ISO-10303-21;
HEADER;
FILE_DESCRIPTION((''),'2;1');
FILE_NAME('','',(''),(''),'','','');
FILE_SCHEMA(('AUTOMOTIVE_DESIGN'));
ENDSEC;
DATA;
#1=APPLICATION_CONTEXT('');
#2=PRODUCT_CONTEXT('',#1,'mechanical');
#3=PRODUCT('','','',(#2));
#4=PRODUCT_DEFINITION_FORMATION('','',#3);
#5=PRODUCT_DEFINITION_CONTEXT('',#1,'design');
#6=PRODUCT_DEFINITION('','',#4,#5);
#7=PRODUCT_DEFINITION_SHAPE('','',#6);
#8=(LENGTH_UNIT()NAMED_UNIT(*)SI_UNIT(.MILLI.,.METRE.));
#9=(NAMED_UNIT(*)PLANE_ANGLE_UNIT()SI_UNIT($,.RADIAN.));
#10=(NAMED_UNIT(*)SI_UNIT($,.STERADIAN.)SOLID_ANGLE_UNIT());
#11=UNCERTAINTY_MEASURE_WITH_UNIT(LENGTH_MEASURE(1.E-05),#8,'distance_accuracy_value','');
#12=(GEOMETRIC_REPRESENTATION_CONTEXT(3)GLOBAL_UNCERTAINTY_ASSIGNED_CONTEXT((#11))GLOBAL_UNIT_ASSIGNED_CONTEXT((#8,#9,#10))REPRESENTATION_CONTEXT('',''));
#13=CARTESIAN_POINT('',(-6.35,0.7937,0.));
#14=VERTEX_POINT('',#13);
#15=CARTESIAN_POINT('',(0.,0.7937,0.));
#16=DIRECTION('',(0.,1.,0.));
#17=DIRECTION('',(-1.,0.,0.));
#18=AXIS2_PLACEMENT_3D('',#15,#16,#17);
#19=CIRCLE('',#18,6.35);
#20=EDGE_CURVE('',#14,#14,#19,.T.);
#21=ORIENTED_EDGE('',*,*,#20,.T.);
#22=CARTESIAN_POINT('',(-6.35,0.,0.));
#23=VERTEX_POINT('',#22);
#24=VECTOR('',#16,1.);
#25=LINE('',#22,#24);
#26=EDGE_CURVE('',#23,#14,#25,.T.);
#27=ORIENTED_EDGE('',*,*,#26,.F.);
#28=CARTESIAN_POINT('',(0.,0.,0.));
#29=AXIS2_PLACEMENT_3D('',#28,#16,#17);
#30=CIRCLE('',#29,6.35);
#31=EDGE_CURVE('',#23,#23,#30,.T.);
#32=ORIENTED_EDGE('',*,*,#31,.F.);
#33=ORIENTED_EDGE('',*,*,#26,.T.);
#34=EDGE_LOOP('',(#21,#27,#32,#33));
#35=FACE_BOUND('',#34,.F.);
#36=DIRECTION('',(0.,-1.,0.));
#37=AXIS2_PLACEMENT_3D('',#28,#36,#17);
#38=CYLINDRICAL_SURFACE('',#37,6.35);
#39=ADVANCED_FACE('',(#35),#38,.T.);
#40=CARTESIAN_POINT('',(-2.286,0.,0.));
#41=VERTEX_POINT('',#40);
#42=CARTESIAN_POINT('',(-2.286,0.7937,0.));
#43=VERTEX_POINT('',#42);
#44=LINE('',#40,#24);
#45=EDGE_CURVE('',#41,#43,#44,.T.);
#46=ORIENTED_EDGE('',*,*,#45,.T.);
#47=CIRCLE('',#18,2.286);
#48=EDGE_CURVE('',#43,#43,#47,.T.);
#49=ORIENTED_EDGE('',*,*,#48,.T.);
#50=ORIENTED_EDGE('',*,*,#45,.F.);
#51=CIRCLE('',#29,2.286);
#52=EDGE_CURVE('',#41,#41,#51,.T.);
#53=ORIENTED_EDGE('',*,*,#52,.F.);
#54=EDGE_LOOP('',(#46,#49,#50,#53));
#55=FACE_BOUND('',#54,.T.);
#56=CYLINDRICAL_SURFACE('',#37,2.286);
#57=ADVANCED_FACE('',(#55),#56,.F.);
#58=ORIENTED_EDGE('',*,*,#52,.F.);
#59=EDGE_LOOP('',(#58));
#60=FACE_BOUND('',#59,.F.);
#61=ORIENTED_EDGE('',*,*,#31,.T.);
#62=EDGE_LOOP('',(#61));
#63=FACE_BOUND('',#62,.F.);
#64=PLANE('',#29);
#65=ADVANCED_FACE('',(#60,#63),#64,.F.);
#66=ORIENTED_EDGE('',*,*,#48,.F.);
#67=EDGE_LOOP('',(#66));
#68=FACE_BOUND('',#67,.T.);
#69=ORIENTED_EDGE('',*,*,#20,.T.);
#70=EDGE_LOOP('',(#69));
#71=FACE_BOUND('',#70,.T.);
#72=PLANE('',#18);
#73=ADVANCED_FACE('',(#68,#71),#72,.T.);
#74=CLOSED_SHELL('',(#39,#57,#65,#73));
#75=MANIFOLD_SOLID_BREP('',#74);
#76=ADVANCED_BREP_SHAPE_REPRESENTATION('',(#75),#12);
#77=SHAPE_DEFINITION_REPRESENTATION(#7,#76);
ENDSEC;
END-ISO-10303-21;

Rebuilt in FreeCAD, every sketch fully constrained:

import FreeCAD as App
import Part
import Sketcher
from FreeCAD import Vector
Q = App.Units.Quantity

doc = App.newDocument("Part")
body = doc.addObject("PartDesign::Body", "Body")

# Sketch on XZ plane
sketch1 = body.newObject("Sketcher::SketchObject", "Sketch")
sketch1.AttachmentSupport = (doc.getObject("XZ_Plane"), [""])
sketch1.MapMode = "FlatFace"
sketch1.addGeometry([
    Part.Circle(Vector(0, 0, 0), Vector(0, 0, 1), 6.3),
    Part.Circle(Vector(0, 0, 0), Vector(0, 0, 1), 2.3),
], False)
sketch1.addConstraint([
    Sketcher.Constraint("Coincident", 0, 3, -1, 1),
    Sketcher.Constraint("Coincident", 1, 3, -1, 1),
    Sketcher.Constraint("Diameter", 0, Q("0.5 in")),
    Sketcher.Constraint("Diameter", 1, Q("0.18 in")),
])
pad1 = body.newObject("PartDesign::Pad", "Pad")
pad1.Profile = sketch1
pad1.Length = Q("0.031248 in")
pad1.Reversed = True

doc.recompute()
